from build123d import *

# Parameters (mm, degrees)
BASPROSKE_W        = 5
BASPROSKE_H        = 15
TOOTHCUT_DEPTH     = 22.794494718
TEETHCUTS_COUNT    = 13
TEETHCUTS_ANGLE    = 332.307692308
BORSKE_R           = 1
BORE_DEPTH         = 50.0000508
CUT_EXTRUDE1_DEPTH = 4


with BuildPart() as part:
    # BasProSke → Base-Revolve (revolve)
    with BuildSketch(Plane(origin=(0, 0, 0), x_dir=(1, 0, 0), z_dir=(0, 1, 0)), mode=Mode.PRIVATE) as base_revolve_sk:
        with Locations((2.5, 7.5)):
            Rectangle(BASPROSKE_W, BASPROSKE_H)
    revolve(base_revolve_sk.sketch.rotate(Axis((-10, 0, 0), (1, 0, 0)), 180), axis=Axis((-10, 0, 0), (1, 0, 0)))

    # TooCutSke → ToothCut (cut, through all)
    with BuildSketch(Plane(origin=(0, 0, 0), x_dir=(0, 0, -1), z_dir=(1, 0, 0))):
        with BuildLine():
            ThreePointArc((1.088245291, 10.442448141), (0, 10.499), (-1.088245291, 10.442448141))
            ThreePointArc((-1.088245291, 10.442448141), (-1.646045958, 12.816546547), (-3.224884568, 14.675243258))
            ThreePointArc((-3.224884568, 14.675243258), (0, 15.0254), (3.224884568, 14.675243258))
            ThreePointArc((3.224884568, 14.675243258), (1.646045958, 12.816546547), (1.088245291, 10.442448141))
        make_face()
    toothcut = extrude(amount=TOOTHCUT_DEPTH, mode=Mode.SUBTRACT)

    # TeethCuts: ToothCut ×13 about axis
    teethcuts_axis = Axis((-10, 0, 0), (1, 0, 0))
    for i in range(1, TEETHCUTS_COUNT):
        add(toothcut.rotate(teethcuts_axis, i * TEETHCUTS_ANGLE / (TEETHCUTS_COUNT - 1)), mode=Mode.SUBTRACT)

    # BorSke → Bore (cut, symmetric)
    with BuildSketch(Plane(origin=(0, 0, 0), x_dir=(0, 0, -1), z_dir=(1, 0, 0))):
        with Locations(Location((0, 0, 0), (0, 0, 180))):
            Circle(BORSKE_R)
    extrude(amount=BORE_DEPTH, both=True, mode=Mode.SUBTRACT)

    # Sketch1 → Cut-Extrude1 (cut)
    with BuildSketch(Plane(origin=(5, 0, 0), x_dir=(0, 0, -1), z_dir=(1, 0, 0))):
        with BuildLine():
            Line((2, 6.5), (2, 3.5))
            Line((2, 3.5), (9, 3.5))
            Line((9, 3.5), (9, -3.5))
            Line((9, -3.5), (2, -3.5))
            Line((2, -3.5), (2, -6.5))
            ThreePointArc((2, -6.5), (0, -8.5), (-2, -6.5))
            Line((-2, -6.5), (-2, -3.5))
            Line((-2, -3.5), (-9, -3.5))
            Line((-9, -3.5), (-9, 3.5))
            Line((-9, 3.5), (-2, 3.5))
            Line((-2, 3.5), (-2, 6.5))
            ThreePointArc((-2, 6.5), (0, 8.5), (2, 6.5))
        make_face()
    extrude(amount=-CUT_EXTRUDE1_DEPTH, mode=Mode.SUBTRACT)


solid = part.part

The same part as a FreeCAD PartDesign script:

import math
import FreeCAD as App
import Part
import Sketcher
Q = App.Units.Quantity

doc = App.newDocument("Part")
body = doc.addObject("PartDesign::Body", "Body")

# Sketch on XZ plane
sketch1 = doc.addObject("Sketcher::SketchObject", "Sketch")
body.addObject(sketch1)
sketch1.AttachmentSupport = (doc.XZ_Plane, [""])
sketch1.MapMode = "FlatFace"
sketch1.addGeometry(Part.LineSegment(App.Vector(0, -15, 0), App.Vector(0, 0, 0)), False)
sketch1.addGeometry(Part.LineSegment(App.Vector(0, 0, 0), App.Vector(5, 0, 0)), False)
sketch1.addGeometry(Part.LineSegment(App.Vector(5, 0, 0), App.Vector(5, -15, 0)), False)
sketch1.addGeometry(Part.LineSegment(App.Vector(5, -15, 0), App.Vector(0, -15, 0)), False)
sketch1.addConstraint(Sketcher.Constraint("Coincident", 0, 2, 1, 1))
sketch1.addConstraint(Sketcher.Constraint("Coincident", 1, 2, 2, 1))
sketch1.addConstraint(Sketcher.Constraint("Coincident", 2, 2, 3, 1))
sketch1.addConstraint(Sketcher.Constraint("Coincident", 3, 2, 0, 1))
sketch1.addConstraint(Sketcher.Constraint("Vertical", 0))
sketch1.addConstraint(Sketcher.Constraint("Horizontal", 1))
sketch1.addConstraint(Sketcher.Constraint("Vertical", 2))
sketch1.addConstraint(Sketcher.Constraint("Horizontal", 3))
sketch1.addConstraint(Sketcher.Constraint("Coincident", 0, 2, -1, 1))
sketch1.addConstraint(Sketcher.Constraint("DistanceX", 1, 1, 1, 2, Q("5 mm")))
sketch1.addConstraint(Sketcher.Constraint("DistanceY", 0, 1, 0, 2, Q("15 mm")))
revolution = doc.addObject("PartDesign::Revolution", "Revolution")
body.addObject(revolution)
revolution.Profile = sketch1
revolution.ReferenceAxis = (sketch1, ["H_Axis"])
revolution.Angle = 360

# Sketch on YZ plane
sketch2 = doc.addObject("Sketcher::SketchObject", "Sketch001")
body.addObject(sketch2)
sketch2.AttachmentSupport = (doc.YZ_Plane, [""])
sketch2.MapMode = "FlatFace"
sketch2.addGeometry(Part.ArcOfCircle(Part.Circle(App.Vector(0, 0, 0), App.Vector(0, 0, 1), 10.5), math.radians(-5.95), math.radians(5.95)), False)
sketch2.addGeometry(Part.ArcOfCircle(Part.Circle(App.Vector(10.5, -6.3, 0), App.Vector(0, 0, 1), 5.2), math.radians(36), math.radians(90)), False)
sketch2.addGeometry(Part.ArcOfCircle(Part.Circle(App.Vector(0, 0, 0), App.Vector(0, 0, 1), 15), math.radians(-12), math.radians(12)), False)
sketch2.addGeometry(Part.ArcOfCircle(Part.Circle(App.Vector(10.5, 6.3, 0), App.Vector(0, 0, 1), 5.2), math.radians(-90), math.radians(-36)), False)
sketch2.addConstraint(Sketcher.Constraint("Coincident", 0, 1, 1, 2))
sketch2.addConstraint(Sketcher.Constraint("Coincident", 1, 1, 2, 1))
sketch2.addConstraint(Sketcher.Constraint("Coincident", 2, 2, 3, 2))
sketch2.addConstraint(Sketcher.Constraint("Coincident", 3, 1, 0, 2))
sketch2.addConstraint(Sketcher.Constraint("Coincident", 0, 3, -1, 1))
sketch2.addConstraint(Sketcher.Constraint("Coincident", 2, 3, -1, 1))
sketch2.addConstraint(Sketcher.Constraint("Equal", 1, 3))
sketch2.addConstraint(Sketcher.Constraint("Symmetric", 1, 3, 3, 3, -1))
sketch2.addConstraint(Sketcher.Constraint("Radius", 1, Q("5.2 mm")))
sketch2.addConstraint(Sketcher.Constraint("Radius", 0, Q("10.499 mm")))
sketch2.addConstraint(Sketcher.Constraint("Radius", 2, Q("15.0254 mm")))
sketch2.addConstraint(Sketcher.Constraint("DistanceY", 0, 1, 3, 3, Q("7.376399 mm")))
sketch2.addConstraint(Sketcher.Constraint("DistanceY", 1, 1, 0, 1, Q("2.136639 mm")))
pocket1 = doc.addObject("PartDesign::Pocket", "Pocket")
body.addObject(pocket1)
pocket1.Profile = sketch2
pocket1.Type = "ThroughAll"
pocket1.Reversed = True
doc.recompute()

polarpattern = doc.addObject("PartDesign::PolarPattern", "PolarPattern")
body.addObject(polarpattern)
polarpattern.Originals = [pocket1]
polarpattern.Axis = (doc.X_Axis, [""])
polarpattern.Angle = 360
polarpattern.Occurrences = 13
body.Tip = polarpattern

# Sketch on YZ plane
sketch3 = doc.addObject("Sketcher::SketchObject", "Sketch002")
body.addObject(sketch3)
sketch3.AttachmentSupport = (doc.YZ_Plane, [""])
sketch3.MapMode = "FlatFace"
sketch3.addGeometry(Part.Circle(App.Vector(0, 0, 0), App.Vector(0, 0, 1), 1), False)
sketch3.addConstraint(Sketcher.Constraint("Coincident", 0, 3, -1, 1))
sketch3.addConstraint(Sketcher.Constraint("Diameter", 0, Q("2 mm")))
pocket2 = doc.addObject("PartDesign::Pocket", "Pocket001")
body.addObject(pocket2)
pocket2.Profile = sketch3
pocket2.Length = 100.000102
pocket2.Midplane = True

# Sketch on YZ plane
sketch4 = doc.addObject("Sketcher::SketchObject", "Sketch003")
body.addObject(sketch4)
sketch4.AttachmentSupport = (doc.YZ_Plane, [""])
sketch4.MapMode = "FlatFace"
sketch4.AttachmentOffset = App.Placement(App.Vector(0, 0, 5), App.Rotation())
sketch4.addGeometry(Part.LineSegment(App.Vector(3.5, -2, 0), App.Vector(6.5, -2, 0)), False)
sketch4.addGeometry(Part.ArcOfCircle(Part.Circle(App.Vector(6.5, 0, 0), App.Vector(0, 0, 1), 2), math.radians(-90), math.radians(90)), False)
sketch4.addGeometry(Part.LineSegment(App.Vector(6.5, 2, 0), App.Vector(3.5, 2, 0)), False)
sketch4.addGeometry(Part.LineSegment(App.Vector(3.5, 2, 0), App.Vector(3.5, 9, 0)), False)
sketch4.addGeometry(Part.LineSegment(App.Vector(3.5, 9, 0), App.Vector(-3.5, 9, 0)), False)
sketch4.addGeometry(Part.LineSegment(App.Vector(-3.5, 9, 0), App.Vector(-3.5, 2, 0)), False)
sketch4.addGeometry(Part.LineSegment(App.Vector(-3.5, 2, 0), App.Vector(-6.5, 2, 0)), False)
sketch4.addGeometry(Part.ArcOfCircle(Part.Circle(App.Vector(-6.5, 0, 0), App.Vector(0, 0, 1), 2), math.radians(90), math.radians(270)), False)
sketch4.addGeometry(Part.LineSegment(App.Vector(-6.5, -2, 0), App.Vector(-3.5, -2, 0)), False)
sketch4.addGeometry(Part.LineSegment(App.Vector(-3.5, -2, 0), App.Vector(-3.5, -9, 0)), False)
sketch4.addGeometry(Part.LineSegment(App.Vector(-3.5, -9, 0), App.Vector(3.5, -9, 0)), False)
sketch4.addGeometry(Part.LineSegment(App.Vector(3.5, -9, 0), App.Vector(3.5, -2, 0)), False)
sketch4.addConstraint(Sketcher.Constraint("Tangent", 0, 2, 1, 1))
sketch4.addConstraint(Sketcher.Constraint("Tangent", 1, 2, 2, 1))
sketch4.addConstraint(Sketcher.Constraint("Coincident", 2, 2, 3, 1))
sketch4.addConstraint(Sketcher.Constraint("Coincident", 3, 2, 4, 1))
sketch4.addConstraint(Sketcher.Constraint("Coincident", 4, 2, 5, 1))
sketch4.addConstraint(Sketcher.Constraint("Coincident", 5, 2, 6, 1))
sketch4.addConstraint(Sketcher.Constraint("Tangent", 6, 2, 7, 1))
sketch4.addConstraint(Sketcher.Constraint("Tangent", 7, 2, 8, 1))
sketch4.addConstraint(Sketcher.Constraint("Coincident", 8, 2, 9, 1))
sketch4.addConstraint(Sketcher.Constraint("Coincident", 9, 2, 10, 1))
sketch4.addConstraint(Sketcher.Constraint("Coincident", 10, 2, 11, 1))
sketch4.addConstraint(Sketcher.Constraint("Coincident", 11, 2, 0, 1))
sketch4.addConstraint(Sketcher.Constraint("Horizontal", 0))
sketch4.addConstraint(Sketcher.Constraint("Horizontal", 2))
sketch4.addConstraint(Sketcher.Constraint("Vertical", 3))
sketch4.addConstraint(Sketcher.Constraint("Horizontal", 4))
sketch4.addConstraint(Sketcher.Constraint("Vertical", 5))
sketch4.addConstraint(Sketcher.Constraint("Horizontal", 6))
sketch4.addConstraint(Sketcher.Constraint("Horizontal", 8))
sketch4.addConstraint(Sketcher.Constraint("Vertical", 9))
sketch4.addConstraint(Sketcher.Constraint("Horizontal", 10))
sketch4.addConstraint(Sketcher.Constraint("Vertical", 11))
sketch4.addConstraint(Sketcher.Constraint("Equal", 1, 7))
sketch4.addConstraint(Sketcher.Constraint("Symmetric", 1, 3, 7, 3, -1, 1))
sketch4.addConstraint(Sketcher.Constraint("Symmetric", 3, 2, 9, 2, -1, 1))
sketch4.addConstraint(Sketcher.Constraint("Symmetric", 2, 2, 5, 2, -2))
sketch4.addConstraint(Sketcher.Constraint("Vertical", 3, 2, 10, 2))
sketch4.addConstraint(Sketcher.Constraint("Equal", 10, 3))
sketch4.addConstraint(Sketcher.Constraint("Radius", 1, Q("2 mm")))
sketch4.addConstraint(Sketcher.Constraint("DistanceX", 0, 1, 0, 2, Q("3 mm")))
sketch4.addConstraint(Sketcher.Constraint("DistanceX", 4, 2, 4, 1, Q("7 mm")))
pocket3 = doc.addObject("PartDesign::Pocket", "Pocket002")
body.addObject(pocket3)
pocket3.Profile = sketch4
pocket3.Length = 4

doc.recompute()
